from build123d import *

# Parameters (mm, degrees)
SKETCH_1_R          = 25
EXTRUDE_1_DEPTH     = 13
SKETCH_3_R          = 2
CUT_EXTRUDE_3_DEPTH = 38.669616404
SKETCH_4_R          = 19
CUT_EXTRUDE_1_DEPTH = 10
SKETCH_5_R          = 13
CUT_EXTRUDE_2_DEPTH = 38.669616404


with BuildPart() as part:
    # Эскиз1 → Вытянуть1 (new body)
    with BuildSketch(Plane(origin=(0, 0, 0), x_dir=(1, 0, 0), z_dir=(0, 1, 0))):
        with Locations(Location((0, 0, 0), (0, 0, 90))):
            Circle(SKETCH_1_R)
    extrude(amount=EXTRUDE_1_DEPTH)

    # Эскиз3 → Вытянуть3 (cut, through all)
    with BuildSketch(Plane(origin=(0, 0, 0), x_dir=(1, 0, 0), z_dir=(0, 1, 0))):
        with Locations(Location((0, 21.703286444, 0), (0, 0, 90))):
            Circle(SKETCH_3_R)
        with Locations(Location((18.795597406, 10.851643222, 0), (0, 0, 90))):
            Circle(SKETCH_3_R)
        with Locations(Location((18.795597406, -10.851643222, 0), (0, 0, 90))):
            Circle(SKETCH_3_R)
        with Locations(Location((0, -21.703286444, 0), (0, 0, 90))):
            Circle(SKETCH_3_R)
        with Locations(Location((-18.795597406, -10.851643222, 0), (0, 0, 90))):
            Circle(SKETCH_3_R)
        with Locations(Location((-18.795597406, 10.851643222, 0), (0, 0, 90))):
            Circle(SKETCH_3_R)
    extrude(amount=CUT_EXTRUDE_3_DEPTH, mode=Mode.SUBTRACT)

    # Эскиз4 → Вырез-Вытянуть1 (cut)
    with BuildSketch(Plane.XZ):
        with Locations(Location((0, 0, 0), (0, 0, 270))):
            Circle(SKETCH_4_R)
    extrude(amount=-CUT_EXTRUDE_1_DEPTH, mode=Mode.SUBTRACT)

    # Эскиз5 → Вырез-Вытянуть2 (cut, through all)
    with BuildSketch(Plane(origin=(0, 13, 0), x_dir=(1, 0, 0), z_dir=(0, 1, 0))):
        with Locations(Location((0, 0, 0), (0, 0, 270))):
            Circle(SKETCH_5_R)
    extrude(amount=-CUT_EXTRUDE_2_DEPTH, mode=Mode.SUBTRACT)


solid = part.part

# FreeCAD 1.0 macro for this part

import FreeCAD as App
import Part
import Sketcher
from FreeCAD import Vector
Q = App.Units.Quantity

doc = App.newDocument("Part")
body = doc.addObject("PartDesign::Body", "Body")

# Sketch on XZ plane
sketch1 = body.newObject("Sketcher::SketchObject", "Sketch")
sketch1.AttachmentSupport = (doc.getObject("XZ_Plane"), [""])
sketch1.MapMode = "FlatFace"
sketch1.addGeometry(Part.Circle(Vector(0, 0, 0), Vector(0, 0, 1), 25), False)
sketch1.addConstraint([
    Sketcher.Constraint("Coincident", 0, 3, -1, 1),
    Sketcher.Constraint("Diameter", 0, Q("50 mm")),
])
pad1 = body.newObject("PartDesign::Pad", "Pad")
pad1.Profile = sketch1
pad1.Length = 13
pad1.Reversed = True

# Sketch on XZ plane
sketch2 = body.newObject("Sketcher::SketchObject", "Sketch001")
sketch2.AttachmentSupport = (doc.getObject("XZ_Plane"), [""])
sketch2.MapMode = "FlatFace"
sketch2.addGeometry([
    Part.Circle(Vector(0, -21.7, 0), Vector(0, 0, 1), 2),  # 0
    Part.Circle(Vector(18.8, -10.9, 0), Vector(0, 0, 1), 2),  # 1
    Part.Circle(Vector(18.8, 10.9, 0), Vector(0, 0, 1), 2),  # 2
    Part.Circle(Vector(0, 21.7, 0), Vector(0, 0, 1), 2),  # 3
    Part.Circle(Vector(-18.8, 10.9, 0), Vector(0, 0, 1), 2),  # 4
    Part.Circle(Vector(-18.8, -10.9, 0), Vector(0, 0, 1), 2),  # 5
], False)
sketch2.addConstraint([
    Sketcher.Constraint("Equal", 0, 1),
    Sketcher.Constraint("Equal", 1, 2),
    Sketcher.Constraint("Equal", 2, 3),
    Sketcher.Constraint("Equal", 3, 4),
    Sketcher.Constraint("Equal", 4, 5),
    Sketcher.Constraint("Symmetric", 0, 3, 3, 3, -1, 1),
    Sketcher.Constraint("Symmetric", 1, 3, 4, 3, -1, 1),
    Sketcher.Constraint("Symmetric", 2, 3, 5, 3, -1, 1),
    Sketcher.Constraint("Symmetric", 2, 3, 4, 3, -2),
    Sketcher.Constraint("PointOnObject", 0, 3, -2),
    Sketcher.Constraint("Diameter", 0, Q("4 mm")),
    Sketcher.Constraint("DistanceY", 0, 3, 2, 3, Q("32.55493 mm")),
    Sketcher.Constraint("DistanceY", 0, 3, -1, 1, Q("21.703286 mm")),
    Sketcher.Constraint("DistanceX", -1, 1, 1, 3, Q("18.795597 mm")),
])
pocket1 = body.newObject("PartDesign::Pocket", "Pocket")
pocket1.Profile = sketch2
pocket1.Type = "ThroughAll"

# Sketch on XZ plane
sketch3 = body.newObject("Sketcher::SketchObject", "Sketch002")
sketch3.AttachmentSupport = (doc.getObject("XZ_Plane"), [""])
sketch3.MapMode = "FlatFace"
sketch3.addGeometry(Part.Circle(Vector(0, 0, 0), Vector(0, 0, 1), 19), False)
sketch3.addConstraint([
    Sketcher.Constraint("Coincident", 0, 3, -1, 1),
    Sketcher.Constraint("Diameter", 0, Q("38 mm")),
])
pocket2 = body.newObject("PartDesign::Pocket", "Pocket001")
pocket2.Profile = sketch3
pocket2.Length = 10

# Sketch on XZ plane
sketch4 = body.newObject("Sketcher::SketchObject", "Sketch003")
sketch4.AttachmentSupport = (doc.getObject("XZ_Plane"), [""])
sketch4.MapMode = "FlatFace"
sketch4.AttachmentOffset = App.Placement(Vector(0, 0, -13), App.Rotation())
sketch4.addGeometry(Part.Circle(Vector(0, 0, 0), Vector(0, 0, 1), 13), False)
sketch4.addConstraint([
    Sketcher.Constraint("Coincident", 0, 3, -1, 1),
    Sketcher.Constraint("Diameter", 0, Q("26 mm")),
])
pocket3 = body.newObject("PartDesign::Pocket", "Pocket002")
pocket3.Profile = sketch4
pocket3.Type = "ThroughAll"
pocket3.Reversed = True

doc.recompute()
